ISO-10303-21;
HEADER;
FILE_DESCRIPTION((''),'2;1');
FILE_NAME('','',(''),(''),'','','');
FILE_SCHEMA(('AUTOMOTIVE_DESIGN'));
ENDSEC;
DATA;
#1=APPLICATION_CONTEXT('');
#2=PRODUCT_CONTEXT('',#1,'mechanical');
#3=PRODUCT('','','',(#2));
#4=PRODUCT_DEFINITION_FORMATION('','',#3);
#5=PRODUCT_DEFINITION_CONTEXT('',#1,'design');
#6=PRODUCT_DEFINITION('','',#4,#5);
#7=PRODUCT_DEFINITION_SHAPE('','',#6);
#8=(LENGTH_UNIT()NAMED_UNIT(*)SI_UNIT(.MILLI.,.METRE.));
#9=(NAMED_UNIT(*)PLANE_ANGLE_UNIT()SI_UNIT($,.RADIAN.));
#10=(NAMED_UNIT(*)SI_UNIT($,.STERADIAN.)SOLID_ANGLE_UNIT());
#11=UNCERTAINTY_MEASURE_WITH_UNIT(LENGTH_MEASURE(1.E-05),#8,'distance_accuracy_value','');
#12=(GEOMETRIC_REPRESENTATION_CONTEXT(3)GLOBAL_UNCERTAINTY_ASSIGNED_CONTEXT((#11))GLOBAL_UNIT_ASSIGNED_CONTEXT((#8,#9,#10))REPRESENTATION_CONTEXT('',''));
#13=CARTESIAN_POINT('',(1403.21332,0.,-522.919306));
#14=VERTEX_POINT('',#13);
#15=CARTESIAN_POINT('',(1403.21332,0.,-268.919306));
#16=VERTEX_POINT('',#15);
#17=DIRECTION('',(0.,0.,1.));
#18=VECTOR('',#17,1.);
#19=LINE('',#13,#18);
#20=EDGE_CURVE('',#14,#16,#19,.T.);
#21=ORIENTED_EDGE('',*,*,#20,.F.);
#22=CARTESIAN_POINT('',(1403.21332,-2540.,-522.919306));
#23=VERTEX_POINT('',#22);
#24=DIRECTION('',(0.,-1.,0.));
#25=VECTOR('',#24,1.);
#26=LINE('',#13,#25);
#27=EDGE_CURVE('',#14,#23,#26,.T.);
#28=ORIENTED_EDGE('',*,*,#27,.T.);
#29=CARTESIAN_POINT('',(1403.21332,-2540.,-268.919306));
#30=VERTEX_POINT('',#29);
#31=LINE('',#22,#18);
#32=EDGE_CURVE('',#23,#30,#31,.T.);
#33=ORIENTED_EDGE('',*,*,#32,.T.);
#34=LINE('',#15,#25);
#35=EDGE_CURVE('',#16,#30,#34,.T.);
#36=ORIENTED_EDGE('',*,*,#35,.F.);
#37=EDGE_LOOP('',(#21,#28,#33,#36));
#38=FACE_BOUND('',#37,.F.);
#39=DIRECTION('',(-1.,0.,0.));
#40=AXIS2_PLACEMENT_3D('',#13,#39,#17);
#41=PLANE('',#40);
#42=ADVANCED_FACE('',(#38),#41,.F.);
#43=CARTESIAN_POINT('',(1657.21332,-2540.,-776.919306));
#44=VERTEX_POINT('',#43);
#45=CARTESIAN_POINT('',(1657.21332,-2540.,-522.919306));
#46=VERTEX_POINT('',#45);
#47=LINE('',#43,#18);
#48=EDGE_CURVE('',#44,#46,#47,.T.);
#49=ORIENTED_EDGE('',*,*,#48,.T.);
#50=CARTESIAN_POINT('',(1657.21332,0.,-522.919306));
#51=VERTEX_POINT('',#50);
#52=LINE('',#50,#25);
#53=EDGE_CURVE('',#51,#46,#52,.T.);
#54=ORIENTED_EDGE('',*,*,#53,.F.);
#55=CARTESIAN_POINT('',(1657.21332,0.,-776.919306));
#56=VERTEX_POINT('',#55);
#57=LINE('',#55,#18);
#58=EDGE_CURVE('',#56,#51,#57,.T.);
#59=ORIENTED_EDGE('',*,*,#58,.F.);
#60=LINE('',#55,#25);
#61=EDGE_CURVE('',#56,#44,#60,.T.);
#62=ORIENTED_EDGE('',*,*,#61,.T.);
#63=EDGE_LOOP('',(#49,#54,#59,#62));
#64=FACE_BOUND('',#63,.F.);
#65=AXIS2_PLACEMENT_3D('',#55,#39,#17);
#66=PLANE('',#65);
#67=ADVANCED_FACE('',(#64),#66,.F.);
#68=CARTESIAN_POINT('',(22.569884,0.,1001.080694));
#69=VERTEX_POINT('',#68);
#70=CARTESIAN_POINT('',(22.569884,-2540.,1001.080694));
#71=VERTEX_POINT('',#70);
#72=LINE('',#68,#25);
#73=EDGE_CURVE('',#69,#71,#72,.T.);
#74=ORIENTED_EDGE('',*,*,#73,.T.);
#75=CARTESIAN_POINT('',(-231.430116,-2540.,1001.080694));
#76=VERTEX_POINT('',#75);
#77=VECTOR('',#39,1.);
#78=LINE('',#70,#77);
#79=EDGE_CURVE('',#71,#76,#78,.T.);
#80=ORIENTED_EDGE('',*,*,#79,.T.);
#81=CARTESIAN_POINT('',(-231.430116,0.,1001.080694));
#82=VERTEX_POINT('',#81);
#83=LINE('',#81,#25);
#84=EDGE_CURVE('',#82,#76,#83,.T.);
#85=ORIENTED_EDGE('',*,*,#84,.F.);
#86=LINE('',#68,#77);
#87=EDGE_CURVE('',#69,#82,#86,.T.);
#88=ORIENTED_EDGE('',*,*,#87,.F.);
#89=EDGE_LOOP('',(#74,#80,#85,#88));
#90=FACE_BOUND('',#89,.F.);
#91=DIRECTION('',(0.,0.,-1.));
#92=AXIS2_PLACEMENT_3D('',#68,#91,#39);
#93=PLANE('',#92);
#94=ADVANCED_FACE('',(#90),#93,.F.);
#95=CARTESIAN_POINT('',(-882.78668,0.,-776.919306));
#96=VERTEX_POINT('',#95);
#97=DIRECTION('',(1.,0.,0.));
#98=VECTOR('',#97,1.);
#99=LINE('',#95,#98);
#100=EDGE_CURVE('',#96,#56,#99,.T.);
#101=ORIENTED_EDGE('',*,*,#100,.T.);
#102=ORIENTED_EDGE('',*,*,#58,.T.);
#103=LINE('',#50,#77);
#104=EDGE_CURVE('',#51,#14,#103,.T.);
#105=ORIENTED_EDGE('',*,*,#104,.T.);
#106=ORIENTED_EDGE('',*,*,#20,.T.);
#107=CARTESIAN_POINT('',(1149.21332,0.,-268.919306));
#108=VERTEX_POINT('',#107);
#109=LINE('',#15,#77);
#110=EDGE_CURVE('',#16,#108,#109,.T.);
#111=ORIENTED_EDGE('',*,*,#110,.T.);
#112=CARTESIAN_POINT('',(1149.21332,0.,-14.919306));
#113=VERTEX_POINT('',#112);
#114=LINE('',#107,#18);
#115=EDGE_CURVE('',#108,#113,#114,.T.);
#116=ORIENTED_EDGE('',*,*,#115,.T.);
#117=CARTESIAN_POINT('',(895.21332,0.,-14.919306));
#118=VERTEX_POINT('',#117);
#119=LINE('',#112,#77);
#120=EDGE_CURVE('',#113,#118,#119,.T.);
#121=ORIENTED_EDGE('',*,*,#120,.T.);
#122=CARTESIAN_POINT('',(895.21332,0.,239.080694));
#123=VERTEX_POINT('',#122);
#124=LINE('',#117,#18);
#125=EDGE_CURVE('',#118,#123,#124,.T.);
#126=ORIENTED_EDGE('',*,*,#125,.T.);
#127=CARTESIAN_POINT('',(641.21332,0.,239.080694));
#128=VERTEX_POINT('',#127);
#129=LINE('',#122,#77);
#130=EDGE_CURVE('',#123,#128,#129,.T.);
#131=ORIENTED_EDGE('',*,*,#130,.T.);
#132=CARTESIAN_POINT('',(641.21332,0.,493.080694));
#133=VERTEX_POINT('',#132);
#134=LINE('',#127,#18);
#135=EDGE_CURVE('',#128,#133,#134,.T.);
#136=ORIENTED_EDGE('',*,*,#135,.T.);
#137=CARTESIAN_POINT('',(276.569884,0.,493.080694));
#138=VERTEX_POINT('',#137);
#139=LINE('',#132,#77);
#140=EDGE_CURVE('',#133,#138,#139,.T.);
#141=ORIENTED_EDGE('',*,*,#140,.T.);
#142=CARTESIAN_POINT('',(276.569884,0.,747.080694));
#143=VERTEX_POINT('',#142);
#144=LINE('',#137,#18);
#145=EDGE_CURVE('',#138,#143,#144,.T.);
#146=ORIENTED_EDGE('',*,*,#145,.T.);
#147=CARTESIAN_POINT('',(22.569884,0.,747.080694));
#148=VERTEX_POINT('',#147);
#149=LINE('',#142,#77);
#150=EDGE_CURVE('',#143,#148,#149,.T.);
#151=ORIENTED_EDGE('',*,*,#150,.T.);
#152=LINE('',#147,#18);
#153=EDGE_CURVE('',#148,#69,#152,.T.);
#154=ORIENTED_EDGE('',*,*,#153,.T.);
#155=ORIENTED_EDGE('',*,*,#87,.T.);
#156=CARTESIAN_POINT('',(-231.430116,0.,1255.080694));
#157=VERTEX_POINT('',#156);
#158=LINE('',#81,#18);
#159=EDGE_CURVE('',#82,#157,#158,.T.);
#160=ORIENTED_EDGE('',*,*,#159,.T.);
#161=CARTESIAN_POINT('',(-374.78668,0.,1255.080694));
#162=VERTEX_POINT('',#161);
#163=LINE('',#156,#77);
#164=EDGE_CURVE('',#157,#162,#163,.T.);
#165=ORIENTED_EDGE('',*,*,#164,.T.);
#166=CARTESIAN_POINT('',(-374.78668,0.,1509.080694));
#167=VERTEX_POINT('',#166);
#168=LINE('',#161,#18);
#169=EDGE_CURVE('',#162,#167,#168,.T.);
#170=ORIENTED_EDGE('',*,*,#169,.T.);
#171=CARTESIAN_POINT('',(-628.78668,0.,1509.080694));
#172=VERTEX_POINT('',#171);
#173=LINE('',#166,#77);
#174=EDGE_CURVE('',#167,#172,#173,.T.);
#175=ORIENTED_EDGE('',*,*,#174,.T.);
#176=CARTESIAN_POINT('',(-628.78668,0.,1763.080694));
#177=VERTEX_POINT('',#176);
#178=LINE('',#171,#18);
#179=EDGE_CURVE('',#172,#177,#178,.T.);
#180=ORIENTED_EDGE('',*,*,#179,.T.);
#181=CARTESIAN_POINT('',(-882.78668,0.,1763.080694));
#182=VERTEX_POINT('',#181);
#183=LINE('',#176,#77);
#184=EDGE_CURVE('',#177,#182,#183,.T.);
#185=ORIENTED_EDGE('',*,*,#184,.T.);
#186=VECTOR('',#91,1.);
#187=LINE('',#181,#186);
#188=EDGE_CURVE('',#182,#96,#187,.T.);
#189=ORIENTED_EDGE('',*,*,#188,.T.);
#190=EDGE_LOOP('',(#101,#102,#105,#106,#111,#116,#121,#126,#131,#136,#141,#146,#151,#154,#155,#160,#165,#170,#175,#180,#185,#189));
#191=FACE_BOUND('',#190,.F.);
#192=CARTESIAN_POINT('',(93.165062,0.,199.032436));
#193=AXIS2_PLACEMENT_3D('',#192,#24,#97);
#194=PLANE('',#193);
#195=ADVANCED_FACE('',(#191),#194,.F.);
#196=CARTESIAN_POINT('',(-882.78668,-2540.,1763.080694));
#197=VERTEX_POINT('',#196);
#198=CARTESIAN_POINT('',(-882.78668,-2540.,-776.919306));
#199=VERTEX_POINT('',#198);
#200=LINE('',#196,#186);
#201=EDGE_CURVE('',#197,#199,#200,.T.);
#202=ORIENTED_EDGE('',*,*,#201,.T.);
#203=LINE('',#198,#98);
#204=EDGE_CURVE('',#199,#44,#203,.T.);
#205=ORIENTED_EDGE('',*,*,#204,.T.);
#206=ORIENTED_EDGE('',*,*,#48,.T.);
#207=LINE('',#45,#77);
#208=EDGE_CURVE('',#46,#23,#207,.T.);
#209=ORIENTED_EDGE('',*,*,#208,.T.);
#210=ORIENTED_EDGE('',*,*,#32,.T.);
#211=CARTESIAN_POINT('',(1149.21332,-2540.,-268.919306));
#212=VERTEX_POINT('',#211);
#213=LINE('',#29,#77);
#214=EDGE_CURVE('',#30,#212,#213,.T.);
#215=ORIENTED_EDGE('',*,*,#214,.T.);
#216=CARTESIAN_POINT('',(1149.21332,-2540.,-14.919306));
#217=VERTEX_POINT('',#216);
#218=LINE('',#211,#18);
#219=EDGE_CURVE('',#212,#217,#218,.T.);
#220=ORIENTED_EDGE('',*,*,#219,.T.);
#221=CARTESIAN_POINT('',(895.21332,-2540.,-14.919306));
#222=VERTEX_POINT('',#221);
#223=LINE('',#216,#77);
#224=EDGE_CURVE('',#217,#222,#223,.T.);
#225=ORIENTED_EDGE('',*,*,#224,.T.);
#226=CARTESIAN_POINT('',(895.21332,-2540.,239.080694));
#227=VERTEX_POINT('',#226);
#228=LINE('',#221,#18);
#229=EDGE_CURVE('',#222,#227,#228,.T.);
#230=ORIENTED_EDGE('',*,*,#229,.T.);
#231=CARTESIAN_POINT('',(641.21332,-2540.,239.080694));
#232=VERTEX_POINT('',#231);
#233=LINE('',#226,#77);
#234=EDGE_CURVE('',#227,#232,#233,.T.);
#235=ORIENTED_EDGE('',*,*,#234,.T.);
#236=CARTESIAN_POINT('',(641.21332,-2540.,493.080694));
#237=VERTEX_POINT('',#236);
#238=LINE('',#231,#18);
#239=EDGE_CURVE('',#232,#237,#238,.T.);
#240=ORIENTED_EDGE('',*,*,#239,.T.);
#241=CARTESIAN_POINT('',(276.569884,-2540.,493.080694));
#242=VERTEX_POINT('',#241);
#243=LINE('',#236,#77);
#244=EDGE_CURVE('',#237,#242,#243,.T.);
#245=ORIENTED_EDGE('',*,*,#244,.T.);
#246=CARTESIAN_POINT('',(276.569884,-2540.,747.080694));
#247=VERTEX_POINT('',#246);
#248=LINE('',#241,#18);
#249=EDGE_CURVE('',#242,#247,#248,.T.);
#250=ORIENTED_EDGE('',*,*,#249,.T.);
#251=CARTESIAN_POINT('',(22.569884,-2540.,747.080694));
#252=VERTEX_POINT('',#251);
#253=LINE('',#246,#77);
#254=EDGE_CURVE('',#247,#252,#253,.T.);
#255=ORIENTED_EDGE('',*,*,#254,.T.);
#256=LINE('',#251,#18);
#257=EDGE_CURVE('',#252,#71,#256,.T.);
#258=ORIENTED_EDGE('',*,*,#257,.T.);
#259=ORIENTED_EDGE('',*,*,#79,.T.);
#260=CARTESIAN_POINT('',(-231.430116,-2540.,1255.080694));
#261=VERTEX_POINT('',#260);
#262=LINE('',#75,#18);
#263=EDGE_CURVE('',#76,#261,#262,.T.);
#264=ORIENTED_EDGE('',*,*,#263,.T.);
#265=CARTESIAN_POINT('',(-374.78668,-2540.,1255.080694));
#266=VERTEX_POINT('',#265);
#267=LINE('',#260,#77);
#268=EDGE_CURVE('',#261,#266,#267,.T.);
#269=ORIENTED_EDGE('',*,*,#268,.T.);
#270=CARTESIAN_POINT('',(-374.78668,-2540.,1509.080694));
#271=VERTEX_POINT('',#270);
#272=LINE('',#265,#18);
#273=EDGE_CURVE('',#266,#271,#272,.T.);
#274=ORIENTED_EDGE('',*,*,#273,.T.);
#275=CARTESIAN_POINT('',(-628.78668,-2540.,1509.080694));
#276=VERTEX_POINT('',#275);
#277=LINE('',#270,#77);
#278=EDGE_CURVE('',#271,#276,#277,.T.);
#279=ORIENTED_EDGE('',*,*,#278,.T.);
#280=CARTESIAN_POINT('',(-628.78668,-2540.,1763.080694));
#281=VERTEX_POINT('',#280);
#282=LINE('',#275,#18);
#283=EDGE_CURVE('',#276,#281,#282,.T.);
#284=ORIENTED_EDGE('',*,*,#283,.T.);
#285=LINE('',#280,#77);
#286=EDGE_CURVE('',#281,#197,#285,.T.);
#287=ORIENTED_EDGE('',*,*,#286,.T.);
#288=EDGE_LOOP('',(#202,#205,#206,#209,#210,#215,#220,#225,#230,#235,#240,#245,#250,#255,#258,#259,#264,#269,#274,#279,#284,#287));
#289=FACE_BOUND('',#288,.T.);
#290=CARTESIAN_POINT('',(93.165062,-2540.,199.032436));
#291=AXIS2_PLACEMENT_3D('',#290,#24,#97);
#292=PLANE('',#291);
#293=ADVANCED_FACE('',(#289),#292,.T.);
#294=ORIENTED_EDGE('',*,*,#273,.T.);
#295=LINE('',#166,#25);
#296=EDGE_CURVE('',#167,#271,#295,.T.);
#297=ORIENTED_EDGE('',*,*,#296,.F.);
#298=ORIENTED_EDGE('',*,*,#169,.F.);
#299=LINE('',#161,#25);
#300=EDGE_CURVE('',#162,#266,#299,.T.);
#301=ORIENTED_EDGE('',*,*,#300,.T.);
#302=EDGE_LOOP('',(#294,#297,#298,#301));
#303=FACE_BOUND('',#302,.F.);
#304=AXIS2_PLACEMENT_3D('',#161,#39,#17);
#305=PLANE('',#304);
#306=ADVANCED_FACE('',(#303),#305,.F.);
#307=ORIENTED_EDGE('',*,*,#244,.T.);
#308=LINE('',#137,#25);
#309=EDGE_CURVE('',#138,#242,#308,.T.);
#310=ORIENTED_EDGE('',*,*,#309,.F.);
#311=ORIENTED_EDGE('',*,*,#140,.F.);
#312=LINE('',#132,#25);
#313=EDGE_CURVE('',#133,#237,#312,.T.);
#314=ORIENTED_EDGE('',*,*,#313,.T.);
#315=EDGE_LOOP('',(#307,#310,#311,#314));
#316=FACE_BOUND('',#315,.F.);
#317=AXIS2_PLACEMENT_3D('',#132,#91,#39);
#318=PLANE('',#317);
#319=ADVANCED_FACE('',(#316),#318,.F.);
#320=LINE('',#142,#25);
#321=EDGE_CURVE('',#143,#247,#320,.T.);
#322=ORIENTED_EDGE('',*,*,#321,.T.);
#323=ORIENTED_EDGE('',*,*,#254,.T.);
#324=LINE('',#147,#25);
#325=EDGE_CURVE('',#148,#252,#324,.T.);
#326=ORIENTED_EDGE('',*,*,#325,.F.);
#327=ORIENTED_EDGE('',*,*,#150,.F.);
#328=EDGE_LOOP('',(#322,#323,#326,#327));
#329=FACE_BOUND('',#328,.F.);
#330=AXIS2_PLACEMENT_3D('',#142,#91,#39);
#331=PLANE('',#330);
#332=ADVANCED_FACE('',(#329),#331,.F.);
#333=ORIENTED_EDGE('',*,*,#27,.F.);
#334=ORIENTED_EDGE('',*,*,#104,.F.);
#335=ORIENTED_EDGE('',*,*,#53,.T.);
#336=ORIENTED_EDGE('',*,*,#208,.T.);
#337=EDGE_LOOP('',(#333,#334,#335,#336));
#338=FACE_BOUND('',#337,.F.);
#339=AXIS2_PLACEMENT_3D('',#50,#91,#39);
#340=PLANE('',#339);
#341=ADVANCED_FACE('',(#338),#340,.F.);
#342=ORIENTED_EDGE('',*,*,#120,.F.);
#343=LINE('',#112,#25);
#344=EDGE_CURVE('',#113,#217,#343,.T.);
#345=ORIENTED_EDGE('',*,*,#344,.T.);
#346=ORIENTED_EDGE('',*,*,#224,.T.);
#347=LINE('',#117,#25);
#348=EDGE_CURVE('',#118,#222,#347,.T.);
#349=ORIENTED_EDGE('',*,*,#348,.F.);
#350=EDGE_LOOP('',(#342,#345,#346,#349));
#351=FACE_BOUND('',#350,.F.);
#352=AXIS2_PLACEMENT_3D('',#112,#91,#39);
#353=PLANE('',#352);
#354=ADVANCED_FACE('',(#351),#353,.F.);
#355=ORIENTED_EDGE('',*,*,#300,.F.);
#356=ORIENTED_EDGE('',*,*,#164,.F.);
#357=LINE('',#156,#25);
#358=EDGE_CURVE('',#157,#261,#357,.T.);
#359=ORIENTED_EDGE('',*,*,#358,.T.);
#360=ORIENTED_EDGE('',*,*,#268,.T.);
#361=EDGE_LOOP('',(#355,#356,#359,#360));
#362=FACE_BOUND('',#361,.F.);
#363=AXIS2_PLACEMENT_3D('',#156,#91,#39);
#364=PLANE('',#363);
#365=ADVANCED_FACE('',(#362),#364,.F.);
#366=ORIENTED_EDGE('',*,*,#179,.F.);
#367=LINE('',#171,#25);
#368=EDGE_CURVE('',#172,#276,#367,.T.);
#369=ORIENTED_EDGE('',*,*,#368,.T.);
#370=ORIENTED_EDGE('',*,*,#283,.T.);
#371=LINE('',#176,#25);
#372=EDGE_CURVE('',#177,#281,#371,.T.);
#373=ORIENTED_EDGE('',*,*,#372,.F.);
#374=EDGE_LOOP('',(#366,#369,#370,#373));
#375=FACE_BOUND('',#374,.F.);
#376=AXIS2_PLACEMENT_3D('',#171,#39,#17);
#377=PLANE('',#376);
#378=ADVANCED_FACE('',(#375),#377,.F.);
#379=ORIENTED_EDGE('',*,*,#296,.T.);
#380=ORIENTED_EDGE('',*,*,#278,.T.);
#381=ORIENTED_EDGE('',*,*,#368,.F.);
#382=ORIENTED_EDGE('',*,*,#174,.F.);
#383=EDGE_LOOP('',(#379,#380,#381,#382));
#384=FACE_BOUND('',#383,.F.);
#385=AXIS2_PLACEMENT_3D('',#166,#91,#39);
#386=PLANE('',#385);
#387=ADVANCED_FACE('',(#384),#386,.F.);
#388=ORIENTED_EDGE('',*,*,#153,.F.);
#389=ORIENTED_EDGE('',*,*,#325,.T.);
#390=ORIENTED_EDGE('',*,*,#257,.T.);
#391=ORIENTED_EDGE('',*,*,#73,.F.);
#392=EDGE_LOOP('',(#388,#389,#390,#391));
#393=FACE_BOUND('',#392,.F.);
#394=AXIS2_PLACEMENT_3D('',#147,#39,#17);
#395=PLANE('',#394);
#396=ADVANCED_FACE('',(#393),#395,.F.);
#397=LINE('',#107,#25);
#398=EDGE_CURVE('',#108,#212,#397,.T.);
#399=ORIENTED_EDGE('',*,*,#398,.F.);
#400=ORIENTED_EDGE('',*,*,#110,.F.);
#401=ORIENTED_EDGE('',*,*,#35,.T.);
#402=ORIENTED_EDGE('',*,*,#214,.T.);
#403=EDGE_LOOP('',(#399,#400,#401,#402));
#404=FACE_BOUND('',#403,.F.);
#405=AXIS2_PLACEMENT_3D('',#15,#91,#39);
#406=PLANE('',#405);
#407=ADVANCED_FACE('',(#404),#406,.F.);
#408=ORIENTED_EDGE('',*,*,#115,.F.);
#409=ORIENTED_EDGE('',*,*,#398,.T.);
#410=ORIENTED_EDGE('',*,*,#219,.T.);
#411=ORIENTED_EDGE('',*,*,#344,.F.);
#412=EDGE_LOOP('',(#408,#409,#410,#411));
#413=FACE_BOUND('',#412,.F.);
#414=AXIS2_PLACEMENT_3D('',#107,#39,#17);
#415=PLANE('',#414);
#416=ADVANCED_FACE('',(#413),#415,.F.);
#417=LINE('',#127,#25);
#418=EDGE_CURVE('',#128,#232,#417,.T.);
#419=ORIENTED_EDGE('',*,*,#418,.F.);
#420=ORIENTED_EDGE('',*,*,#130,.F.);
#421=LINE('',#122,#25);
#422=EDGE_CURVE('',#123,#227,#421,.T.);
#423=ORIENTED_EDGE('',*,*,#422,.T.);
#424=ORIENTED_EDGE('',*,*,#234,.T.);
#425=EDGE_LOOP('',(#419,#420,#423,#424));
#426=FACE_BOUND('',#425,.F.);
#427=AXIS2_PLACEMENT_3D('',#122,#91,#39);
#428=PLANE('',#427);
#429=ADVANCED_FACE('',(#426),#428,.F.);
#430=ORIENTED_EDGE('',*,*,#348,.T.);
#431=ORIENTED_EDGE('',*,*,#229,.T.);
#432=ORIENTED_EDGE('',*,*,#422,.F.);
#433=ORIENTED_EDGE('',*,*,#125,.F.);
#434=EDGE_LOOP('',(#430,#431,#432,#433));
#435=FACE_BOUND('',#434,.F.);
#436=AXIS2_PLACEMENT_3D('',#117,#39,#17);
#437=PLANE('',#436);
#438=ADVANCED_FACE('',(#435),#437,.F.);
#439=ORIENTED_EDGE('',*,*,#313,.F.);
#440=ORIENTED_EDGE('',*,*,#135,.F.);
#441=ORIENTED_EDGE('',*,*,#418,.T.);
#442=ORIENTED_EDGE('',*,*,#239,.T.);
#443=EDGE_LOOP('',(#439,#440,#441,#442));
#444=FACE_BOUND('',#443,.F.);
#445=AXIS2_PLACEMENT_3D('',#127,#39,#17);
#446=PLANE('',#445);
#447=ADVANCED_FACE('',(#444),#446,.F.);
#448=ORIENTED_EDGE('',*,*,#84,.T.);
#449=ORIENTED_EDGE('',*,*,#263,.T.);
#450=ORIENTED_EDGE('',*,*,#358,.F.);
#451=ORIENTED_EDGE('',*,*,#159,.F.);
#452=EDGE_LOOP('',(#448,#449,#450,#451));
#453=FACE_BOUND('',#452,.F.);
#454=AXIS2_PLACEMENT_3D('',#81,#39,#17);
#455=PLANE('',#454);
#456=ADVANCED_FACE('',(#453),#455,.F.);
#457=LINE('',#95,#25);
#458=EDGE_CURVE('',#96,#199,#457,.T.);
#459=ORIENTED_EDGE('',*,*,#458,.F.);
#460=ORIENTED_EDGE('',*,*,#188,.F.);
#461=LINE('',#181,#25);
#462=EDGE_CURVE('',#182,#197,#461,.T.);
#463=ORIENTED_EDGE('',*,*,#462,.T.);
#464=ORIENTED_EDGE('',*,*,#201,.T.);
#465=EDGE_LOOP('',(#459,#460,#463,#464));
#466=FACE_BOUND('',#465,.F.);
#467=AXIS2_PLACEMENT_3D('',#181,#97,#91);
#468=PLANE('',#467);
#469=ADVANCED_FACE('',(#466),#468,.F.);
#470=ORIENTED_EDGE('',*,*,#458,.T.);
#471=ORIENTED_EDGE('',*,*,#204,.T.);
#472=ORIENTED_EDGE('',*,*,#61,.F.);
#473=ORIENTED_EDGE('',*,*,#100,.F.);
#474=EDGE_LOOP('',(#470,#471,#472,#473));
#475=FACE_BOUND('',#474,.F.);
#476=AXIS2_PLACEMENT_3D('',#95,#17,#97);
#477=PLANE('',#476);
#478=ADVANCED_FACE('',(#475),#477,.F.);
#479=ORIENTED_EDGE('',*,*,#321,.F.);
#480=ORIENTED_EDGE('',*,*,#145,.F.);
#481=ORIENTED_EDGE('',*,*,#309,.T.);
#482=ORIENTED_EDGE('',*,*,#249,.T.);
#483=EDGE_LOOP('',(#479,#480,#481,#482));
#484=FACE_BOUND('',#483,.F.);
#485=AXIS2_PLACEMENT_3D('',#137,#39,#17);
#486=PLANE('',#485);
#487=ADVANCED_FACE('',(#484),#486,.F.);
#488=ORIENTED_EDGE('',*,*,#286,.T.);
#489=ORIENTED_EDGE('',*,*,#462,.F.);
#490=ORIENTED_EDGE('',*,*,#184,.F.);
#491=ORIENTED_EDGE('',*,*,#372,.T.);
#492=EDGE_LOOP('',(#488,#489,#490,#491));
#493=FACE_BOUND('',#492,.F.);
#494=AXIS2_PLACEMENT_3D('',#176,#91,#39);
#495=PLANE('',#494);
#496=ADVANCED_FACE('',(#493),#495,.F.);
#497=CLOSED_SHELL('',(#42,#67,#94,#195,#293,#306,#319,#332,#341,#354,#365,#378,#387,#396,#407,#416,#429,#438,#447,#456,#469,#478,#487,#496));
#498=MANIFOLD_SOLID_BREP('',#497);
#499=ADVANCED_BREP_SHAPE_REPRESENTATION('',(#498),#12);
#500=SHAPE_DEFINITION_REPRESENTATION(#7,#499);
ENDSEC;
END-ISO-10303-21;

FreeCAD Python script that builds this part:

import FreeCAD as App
import Part
import Sketcher
from FreeCAD import Vector
Q = App.Units.Quantity


def add_polygon(sketch, points):
    """Adds a closed chain of lines whose ends are joined by coincident constraints."""
    first, n = sketch.GeometryCount, len(points)
    for a, b in zip(points, points[1:] + points[:1]):
        sketch.addGeometry(Part.LineSegment(App.Vector(*a, 0), App.Vector(*b, 0)), False)
    for i in range(n):
        sketch.addConstraint(Sketcher.Constraint("Coincident", first + i, 2, first + (i + 1) % n, 1))

doc = App.newDocument("Part")
params = doc.addObject("Spreadsheet::Sheet", "Params")
for row, (alias, value) in enumerate([
    ("sketch1_width", "10 in"),
    ("pad1_length", "100 in"),
], start=1):
    params.set(f"A{row}", alias)
    params.set(f"B{row}", "=" + value)
    params.setAlias(f"B{row}", alias)

body = doc.addObject("PartDesign::Body", "Body")

# Sketch on XZ plane
sketch1 = body.newObject("Sketcher::SketchObject", "Sketch")
sketch1.AttachmentSupport = (doc.getObject("XZ_Plane"), [""])
sketch1.MapMode = "FlatFace"
add_polygon(sketch1, [(-629, 1763), (-883, 1763), (-883, -777), (1657, -777), (1657, -523), (1403, -523), (1403, -269), (1149, -269), (1149, -15), (895, -15), (895, 239), (641, 239), (641, 493), (277, 493), (277, 747), (23, 747), (23, 1001), (-231, 1001), (-231, 1255), (-375, 1255), (-375, 1509), (-629, 1509)])  # lines 0-21
sketch1.addConstraint(Sketcher.Constraint("Horizontal", 0))
sketch1.addConstraint(Sketcher.Constraint("Vertical", 1))
sketch1.addConstraint(Sketcher.Constraint("Horizontal", 2))
sketch1.addConstraint(Sketcher.Constraint("Vertical", 3))
sketch1.addConstraint(Sketcher.Constraint("Horizontal", 4))
sketch1.addConstraint(Sketcher.Constraint("Vertical", 5))
sketch1.addConstraint(Sketcher.Constraint("Horizontal", 6))
sketch1.addConstraint(Sketcher.Constraint("Vertical", 7))
sketch1.addConstraint(Sketcher.Constraint("Horizontal", 8))
sketch1.addConstraint(Sketcher.Constraint("Vertical", 9))
sketch1.addConstraint(Sketcher.Constraint("Horizontal", 10))
sketch1.addConstraint(Sketcher.Constraint("Vertical", 11))
sketch1.addConstraint(Sketcher.Constraint("Horizontal", 12))
sketch1.addConstraint(Sketcher.Constraint("Vertical", 13))
sketch1.addConstraint(Sketcher.Constraint("Horizontal", 14))
sketch1.addConstraint(Sketcher.Constraint("Vertical", 15))
sketch1.addConstraint(Sketcher.Constraint("Horizontal", 16))
sketch1.addConstraint(Sketcher.Constraint("Vertical", 17))
sketch1.addConstraint(Sketcher.Constraint("Horizontal", 18))
sketch1.addConstraint(Sketcher.Constraint("Vertical", 19))
sketch1.addConstraint(Sketcher.Constraint("Horizontal", 20))
sketch1.addConstraint(Sketcher.Constraint("Vertical", 21))
sketch1.addConstraint(Sketcher.Constraint("Equal", 0, 4))
sketch1.addConstraint(Sketcher.Constraint("Equal", 4, 6))
sketch1.addConstraint(Sketcher.Constraint("Equal", 6, 8))
sketch1.addConstraint(Sketcher.Constraint("Equal", 8, 10))
sketch1.addConstraint(Sketcher.Constraint("Equal", 10, 14))
sketch1.addConstraint(Sketcher.Constraint("Equal", 14, 16))
sketch1.addConstraint(Sketcher.Constraint("Equal", 16, 20))
sketch1.addConstraint(Sketcher.Constraint("Equal", 2, 1))
sketch1.addConstraint(Sketcher.Constraint("Equal", 20, 3))
sketch1.addConstraint(Sketcher.Constraint("Equal", 3, 5))
sketch1.addConstraint(Sketcher.Constraint("Equal", 5, 7))
sketch1.addConstraint(Sketcher.Constraint("Equal", 7, 9))
sketch1.addConstraint(Sketcher.Constraint("Equal", 9, 11))
sketch1.addConstraint(Sketcher.Constraint("Equal", 11, 13))
sketch1.addConstraint(Sketcher.Constraint("Equal", 13, 15))
sketch1.addConstraint(Sketcher.Constraint("Equal", 15, 17))
sketch1.addConstraint(Sketcher.Constraint("Equal", 17, 19))
sketch1.addConstraint(Sketcher.Constraint("Equal", 19, 21))
sketch1.addConstraint(Sketcher.Constraint("DistanceX", 0, 2, 0, 1, Q("10 in")))
sketch1.addConstraint(Sketcher.Constraint("DistanceX", 12, 2, 12, 1, Q("364.643436 mm")))
sketch1.addConstraint(Sketcher.Constraint("DistanceX", 0, 2, -1, 1, Q("882.78668 mm")))
sketch1.addConstraint(Sketcher.Constraint("DistanceY", -1, 1, 0, 2, Q("1763.080694 mm")))
sketch1.setExpression("Constraints[62]", "Params.sketch1_width")
pad1 = body.newObject("PartDesign::Pad", "Pad")
pad1.Profile = sketch1
pad1.setExpression("Length", "Params.pad1_length")

doc.recompute()
